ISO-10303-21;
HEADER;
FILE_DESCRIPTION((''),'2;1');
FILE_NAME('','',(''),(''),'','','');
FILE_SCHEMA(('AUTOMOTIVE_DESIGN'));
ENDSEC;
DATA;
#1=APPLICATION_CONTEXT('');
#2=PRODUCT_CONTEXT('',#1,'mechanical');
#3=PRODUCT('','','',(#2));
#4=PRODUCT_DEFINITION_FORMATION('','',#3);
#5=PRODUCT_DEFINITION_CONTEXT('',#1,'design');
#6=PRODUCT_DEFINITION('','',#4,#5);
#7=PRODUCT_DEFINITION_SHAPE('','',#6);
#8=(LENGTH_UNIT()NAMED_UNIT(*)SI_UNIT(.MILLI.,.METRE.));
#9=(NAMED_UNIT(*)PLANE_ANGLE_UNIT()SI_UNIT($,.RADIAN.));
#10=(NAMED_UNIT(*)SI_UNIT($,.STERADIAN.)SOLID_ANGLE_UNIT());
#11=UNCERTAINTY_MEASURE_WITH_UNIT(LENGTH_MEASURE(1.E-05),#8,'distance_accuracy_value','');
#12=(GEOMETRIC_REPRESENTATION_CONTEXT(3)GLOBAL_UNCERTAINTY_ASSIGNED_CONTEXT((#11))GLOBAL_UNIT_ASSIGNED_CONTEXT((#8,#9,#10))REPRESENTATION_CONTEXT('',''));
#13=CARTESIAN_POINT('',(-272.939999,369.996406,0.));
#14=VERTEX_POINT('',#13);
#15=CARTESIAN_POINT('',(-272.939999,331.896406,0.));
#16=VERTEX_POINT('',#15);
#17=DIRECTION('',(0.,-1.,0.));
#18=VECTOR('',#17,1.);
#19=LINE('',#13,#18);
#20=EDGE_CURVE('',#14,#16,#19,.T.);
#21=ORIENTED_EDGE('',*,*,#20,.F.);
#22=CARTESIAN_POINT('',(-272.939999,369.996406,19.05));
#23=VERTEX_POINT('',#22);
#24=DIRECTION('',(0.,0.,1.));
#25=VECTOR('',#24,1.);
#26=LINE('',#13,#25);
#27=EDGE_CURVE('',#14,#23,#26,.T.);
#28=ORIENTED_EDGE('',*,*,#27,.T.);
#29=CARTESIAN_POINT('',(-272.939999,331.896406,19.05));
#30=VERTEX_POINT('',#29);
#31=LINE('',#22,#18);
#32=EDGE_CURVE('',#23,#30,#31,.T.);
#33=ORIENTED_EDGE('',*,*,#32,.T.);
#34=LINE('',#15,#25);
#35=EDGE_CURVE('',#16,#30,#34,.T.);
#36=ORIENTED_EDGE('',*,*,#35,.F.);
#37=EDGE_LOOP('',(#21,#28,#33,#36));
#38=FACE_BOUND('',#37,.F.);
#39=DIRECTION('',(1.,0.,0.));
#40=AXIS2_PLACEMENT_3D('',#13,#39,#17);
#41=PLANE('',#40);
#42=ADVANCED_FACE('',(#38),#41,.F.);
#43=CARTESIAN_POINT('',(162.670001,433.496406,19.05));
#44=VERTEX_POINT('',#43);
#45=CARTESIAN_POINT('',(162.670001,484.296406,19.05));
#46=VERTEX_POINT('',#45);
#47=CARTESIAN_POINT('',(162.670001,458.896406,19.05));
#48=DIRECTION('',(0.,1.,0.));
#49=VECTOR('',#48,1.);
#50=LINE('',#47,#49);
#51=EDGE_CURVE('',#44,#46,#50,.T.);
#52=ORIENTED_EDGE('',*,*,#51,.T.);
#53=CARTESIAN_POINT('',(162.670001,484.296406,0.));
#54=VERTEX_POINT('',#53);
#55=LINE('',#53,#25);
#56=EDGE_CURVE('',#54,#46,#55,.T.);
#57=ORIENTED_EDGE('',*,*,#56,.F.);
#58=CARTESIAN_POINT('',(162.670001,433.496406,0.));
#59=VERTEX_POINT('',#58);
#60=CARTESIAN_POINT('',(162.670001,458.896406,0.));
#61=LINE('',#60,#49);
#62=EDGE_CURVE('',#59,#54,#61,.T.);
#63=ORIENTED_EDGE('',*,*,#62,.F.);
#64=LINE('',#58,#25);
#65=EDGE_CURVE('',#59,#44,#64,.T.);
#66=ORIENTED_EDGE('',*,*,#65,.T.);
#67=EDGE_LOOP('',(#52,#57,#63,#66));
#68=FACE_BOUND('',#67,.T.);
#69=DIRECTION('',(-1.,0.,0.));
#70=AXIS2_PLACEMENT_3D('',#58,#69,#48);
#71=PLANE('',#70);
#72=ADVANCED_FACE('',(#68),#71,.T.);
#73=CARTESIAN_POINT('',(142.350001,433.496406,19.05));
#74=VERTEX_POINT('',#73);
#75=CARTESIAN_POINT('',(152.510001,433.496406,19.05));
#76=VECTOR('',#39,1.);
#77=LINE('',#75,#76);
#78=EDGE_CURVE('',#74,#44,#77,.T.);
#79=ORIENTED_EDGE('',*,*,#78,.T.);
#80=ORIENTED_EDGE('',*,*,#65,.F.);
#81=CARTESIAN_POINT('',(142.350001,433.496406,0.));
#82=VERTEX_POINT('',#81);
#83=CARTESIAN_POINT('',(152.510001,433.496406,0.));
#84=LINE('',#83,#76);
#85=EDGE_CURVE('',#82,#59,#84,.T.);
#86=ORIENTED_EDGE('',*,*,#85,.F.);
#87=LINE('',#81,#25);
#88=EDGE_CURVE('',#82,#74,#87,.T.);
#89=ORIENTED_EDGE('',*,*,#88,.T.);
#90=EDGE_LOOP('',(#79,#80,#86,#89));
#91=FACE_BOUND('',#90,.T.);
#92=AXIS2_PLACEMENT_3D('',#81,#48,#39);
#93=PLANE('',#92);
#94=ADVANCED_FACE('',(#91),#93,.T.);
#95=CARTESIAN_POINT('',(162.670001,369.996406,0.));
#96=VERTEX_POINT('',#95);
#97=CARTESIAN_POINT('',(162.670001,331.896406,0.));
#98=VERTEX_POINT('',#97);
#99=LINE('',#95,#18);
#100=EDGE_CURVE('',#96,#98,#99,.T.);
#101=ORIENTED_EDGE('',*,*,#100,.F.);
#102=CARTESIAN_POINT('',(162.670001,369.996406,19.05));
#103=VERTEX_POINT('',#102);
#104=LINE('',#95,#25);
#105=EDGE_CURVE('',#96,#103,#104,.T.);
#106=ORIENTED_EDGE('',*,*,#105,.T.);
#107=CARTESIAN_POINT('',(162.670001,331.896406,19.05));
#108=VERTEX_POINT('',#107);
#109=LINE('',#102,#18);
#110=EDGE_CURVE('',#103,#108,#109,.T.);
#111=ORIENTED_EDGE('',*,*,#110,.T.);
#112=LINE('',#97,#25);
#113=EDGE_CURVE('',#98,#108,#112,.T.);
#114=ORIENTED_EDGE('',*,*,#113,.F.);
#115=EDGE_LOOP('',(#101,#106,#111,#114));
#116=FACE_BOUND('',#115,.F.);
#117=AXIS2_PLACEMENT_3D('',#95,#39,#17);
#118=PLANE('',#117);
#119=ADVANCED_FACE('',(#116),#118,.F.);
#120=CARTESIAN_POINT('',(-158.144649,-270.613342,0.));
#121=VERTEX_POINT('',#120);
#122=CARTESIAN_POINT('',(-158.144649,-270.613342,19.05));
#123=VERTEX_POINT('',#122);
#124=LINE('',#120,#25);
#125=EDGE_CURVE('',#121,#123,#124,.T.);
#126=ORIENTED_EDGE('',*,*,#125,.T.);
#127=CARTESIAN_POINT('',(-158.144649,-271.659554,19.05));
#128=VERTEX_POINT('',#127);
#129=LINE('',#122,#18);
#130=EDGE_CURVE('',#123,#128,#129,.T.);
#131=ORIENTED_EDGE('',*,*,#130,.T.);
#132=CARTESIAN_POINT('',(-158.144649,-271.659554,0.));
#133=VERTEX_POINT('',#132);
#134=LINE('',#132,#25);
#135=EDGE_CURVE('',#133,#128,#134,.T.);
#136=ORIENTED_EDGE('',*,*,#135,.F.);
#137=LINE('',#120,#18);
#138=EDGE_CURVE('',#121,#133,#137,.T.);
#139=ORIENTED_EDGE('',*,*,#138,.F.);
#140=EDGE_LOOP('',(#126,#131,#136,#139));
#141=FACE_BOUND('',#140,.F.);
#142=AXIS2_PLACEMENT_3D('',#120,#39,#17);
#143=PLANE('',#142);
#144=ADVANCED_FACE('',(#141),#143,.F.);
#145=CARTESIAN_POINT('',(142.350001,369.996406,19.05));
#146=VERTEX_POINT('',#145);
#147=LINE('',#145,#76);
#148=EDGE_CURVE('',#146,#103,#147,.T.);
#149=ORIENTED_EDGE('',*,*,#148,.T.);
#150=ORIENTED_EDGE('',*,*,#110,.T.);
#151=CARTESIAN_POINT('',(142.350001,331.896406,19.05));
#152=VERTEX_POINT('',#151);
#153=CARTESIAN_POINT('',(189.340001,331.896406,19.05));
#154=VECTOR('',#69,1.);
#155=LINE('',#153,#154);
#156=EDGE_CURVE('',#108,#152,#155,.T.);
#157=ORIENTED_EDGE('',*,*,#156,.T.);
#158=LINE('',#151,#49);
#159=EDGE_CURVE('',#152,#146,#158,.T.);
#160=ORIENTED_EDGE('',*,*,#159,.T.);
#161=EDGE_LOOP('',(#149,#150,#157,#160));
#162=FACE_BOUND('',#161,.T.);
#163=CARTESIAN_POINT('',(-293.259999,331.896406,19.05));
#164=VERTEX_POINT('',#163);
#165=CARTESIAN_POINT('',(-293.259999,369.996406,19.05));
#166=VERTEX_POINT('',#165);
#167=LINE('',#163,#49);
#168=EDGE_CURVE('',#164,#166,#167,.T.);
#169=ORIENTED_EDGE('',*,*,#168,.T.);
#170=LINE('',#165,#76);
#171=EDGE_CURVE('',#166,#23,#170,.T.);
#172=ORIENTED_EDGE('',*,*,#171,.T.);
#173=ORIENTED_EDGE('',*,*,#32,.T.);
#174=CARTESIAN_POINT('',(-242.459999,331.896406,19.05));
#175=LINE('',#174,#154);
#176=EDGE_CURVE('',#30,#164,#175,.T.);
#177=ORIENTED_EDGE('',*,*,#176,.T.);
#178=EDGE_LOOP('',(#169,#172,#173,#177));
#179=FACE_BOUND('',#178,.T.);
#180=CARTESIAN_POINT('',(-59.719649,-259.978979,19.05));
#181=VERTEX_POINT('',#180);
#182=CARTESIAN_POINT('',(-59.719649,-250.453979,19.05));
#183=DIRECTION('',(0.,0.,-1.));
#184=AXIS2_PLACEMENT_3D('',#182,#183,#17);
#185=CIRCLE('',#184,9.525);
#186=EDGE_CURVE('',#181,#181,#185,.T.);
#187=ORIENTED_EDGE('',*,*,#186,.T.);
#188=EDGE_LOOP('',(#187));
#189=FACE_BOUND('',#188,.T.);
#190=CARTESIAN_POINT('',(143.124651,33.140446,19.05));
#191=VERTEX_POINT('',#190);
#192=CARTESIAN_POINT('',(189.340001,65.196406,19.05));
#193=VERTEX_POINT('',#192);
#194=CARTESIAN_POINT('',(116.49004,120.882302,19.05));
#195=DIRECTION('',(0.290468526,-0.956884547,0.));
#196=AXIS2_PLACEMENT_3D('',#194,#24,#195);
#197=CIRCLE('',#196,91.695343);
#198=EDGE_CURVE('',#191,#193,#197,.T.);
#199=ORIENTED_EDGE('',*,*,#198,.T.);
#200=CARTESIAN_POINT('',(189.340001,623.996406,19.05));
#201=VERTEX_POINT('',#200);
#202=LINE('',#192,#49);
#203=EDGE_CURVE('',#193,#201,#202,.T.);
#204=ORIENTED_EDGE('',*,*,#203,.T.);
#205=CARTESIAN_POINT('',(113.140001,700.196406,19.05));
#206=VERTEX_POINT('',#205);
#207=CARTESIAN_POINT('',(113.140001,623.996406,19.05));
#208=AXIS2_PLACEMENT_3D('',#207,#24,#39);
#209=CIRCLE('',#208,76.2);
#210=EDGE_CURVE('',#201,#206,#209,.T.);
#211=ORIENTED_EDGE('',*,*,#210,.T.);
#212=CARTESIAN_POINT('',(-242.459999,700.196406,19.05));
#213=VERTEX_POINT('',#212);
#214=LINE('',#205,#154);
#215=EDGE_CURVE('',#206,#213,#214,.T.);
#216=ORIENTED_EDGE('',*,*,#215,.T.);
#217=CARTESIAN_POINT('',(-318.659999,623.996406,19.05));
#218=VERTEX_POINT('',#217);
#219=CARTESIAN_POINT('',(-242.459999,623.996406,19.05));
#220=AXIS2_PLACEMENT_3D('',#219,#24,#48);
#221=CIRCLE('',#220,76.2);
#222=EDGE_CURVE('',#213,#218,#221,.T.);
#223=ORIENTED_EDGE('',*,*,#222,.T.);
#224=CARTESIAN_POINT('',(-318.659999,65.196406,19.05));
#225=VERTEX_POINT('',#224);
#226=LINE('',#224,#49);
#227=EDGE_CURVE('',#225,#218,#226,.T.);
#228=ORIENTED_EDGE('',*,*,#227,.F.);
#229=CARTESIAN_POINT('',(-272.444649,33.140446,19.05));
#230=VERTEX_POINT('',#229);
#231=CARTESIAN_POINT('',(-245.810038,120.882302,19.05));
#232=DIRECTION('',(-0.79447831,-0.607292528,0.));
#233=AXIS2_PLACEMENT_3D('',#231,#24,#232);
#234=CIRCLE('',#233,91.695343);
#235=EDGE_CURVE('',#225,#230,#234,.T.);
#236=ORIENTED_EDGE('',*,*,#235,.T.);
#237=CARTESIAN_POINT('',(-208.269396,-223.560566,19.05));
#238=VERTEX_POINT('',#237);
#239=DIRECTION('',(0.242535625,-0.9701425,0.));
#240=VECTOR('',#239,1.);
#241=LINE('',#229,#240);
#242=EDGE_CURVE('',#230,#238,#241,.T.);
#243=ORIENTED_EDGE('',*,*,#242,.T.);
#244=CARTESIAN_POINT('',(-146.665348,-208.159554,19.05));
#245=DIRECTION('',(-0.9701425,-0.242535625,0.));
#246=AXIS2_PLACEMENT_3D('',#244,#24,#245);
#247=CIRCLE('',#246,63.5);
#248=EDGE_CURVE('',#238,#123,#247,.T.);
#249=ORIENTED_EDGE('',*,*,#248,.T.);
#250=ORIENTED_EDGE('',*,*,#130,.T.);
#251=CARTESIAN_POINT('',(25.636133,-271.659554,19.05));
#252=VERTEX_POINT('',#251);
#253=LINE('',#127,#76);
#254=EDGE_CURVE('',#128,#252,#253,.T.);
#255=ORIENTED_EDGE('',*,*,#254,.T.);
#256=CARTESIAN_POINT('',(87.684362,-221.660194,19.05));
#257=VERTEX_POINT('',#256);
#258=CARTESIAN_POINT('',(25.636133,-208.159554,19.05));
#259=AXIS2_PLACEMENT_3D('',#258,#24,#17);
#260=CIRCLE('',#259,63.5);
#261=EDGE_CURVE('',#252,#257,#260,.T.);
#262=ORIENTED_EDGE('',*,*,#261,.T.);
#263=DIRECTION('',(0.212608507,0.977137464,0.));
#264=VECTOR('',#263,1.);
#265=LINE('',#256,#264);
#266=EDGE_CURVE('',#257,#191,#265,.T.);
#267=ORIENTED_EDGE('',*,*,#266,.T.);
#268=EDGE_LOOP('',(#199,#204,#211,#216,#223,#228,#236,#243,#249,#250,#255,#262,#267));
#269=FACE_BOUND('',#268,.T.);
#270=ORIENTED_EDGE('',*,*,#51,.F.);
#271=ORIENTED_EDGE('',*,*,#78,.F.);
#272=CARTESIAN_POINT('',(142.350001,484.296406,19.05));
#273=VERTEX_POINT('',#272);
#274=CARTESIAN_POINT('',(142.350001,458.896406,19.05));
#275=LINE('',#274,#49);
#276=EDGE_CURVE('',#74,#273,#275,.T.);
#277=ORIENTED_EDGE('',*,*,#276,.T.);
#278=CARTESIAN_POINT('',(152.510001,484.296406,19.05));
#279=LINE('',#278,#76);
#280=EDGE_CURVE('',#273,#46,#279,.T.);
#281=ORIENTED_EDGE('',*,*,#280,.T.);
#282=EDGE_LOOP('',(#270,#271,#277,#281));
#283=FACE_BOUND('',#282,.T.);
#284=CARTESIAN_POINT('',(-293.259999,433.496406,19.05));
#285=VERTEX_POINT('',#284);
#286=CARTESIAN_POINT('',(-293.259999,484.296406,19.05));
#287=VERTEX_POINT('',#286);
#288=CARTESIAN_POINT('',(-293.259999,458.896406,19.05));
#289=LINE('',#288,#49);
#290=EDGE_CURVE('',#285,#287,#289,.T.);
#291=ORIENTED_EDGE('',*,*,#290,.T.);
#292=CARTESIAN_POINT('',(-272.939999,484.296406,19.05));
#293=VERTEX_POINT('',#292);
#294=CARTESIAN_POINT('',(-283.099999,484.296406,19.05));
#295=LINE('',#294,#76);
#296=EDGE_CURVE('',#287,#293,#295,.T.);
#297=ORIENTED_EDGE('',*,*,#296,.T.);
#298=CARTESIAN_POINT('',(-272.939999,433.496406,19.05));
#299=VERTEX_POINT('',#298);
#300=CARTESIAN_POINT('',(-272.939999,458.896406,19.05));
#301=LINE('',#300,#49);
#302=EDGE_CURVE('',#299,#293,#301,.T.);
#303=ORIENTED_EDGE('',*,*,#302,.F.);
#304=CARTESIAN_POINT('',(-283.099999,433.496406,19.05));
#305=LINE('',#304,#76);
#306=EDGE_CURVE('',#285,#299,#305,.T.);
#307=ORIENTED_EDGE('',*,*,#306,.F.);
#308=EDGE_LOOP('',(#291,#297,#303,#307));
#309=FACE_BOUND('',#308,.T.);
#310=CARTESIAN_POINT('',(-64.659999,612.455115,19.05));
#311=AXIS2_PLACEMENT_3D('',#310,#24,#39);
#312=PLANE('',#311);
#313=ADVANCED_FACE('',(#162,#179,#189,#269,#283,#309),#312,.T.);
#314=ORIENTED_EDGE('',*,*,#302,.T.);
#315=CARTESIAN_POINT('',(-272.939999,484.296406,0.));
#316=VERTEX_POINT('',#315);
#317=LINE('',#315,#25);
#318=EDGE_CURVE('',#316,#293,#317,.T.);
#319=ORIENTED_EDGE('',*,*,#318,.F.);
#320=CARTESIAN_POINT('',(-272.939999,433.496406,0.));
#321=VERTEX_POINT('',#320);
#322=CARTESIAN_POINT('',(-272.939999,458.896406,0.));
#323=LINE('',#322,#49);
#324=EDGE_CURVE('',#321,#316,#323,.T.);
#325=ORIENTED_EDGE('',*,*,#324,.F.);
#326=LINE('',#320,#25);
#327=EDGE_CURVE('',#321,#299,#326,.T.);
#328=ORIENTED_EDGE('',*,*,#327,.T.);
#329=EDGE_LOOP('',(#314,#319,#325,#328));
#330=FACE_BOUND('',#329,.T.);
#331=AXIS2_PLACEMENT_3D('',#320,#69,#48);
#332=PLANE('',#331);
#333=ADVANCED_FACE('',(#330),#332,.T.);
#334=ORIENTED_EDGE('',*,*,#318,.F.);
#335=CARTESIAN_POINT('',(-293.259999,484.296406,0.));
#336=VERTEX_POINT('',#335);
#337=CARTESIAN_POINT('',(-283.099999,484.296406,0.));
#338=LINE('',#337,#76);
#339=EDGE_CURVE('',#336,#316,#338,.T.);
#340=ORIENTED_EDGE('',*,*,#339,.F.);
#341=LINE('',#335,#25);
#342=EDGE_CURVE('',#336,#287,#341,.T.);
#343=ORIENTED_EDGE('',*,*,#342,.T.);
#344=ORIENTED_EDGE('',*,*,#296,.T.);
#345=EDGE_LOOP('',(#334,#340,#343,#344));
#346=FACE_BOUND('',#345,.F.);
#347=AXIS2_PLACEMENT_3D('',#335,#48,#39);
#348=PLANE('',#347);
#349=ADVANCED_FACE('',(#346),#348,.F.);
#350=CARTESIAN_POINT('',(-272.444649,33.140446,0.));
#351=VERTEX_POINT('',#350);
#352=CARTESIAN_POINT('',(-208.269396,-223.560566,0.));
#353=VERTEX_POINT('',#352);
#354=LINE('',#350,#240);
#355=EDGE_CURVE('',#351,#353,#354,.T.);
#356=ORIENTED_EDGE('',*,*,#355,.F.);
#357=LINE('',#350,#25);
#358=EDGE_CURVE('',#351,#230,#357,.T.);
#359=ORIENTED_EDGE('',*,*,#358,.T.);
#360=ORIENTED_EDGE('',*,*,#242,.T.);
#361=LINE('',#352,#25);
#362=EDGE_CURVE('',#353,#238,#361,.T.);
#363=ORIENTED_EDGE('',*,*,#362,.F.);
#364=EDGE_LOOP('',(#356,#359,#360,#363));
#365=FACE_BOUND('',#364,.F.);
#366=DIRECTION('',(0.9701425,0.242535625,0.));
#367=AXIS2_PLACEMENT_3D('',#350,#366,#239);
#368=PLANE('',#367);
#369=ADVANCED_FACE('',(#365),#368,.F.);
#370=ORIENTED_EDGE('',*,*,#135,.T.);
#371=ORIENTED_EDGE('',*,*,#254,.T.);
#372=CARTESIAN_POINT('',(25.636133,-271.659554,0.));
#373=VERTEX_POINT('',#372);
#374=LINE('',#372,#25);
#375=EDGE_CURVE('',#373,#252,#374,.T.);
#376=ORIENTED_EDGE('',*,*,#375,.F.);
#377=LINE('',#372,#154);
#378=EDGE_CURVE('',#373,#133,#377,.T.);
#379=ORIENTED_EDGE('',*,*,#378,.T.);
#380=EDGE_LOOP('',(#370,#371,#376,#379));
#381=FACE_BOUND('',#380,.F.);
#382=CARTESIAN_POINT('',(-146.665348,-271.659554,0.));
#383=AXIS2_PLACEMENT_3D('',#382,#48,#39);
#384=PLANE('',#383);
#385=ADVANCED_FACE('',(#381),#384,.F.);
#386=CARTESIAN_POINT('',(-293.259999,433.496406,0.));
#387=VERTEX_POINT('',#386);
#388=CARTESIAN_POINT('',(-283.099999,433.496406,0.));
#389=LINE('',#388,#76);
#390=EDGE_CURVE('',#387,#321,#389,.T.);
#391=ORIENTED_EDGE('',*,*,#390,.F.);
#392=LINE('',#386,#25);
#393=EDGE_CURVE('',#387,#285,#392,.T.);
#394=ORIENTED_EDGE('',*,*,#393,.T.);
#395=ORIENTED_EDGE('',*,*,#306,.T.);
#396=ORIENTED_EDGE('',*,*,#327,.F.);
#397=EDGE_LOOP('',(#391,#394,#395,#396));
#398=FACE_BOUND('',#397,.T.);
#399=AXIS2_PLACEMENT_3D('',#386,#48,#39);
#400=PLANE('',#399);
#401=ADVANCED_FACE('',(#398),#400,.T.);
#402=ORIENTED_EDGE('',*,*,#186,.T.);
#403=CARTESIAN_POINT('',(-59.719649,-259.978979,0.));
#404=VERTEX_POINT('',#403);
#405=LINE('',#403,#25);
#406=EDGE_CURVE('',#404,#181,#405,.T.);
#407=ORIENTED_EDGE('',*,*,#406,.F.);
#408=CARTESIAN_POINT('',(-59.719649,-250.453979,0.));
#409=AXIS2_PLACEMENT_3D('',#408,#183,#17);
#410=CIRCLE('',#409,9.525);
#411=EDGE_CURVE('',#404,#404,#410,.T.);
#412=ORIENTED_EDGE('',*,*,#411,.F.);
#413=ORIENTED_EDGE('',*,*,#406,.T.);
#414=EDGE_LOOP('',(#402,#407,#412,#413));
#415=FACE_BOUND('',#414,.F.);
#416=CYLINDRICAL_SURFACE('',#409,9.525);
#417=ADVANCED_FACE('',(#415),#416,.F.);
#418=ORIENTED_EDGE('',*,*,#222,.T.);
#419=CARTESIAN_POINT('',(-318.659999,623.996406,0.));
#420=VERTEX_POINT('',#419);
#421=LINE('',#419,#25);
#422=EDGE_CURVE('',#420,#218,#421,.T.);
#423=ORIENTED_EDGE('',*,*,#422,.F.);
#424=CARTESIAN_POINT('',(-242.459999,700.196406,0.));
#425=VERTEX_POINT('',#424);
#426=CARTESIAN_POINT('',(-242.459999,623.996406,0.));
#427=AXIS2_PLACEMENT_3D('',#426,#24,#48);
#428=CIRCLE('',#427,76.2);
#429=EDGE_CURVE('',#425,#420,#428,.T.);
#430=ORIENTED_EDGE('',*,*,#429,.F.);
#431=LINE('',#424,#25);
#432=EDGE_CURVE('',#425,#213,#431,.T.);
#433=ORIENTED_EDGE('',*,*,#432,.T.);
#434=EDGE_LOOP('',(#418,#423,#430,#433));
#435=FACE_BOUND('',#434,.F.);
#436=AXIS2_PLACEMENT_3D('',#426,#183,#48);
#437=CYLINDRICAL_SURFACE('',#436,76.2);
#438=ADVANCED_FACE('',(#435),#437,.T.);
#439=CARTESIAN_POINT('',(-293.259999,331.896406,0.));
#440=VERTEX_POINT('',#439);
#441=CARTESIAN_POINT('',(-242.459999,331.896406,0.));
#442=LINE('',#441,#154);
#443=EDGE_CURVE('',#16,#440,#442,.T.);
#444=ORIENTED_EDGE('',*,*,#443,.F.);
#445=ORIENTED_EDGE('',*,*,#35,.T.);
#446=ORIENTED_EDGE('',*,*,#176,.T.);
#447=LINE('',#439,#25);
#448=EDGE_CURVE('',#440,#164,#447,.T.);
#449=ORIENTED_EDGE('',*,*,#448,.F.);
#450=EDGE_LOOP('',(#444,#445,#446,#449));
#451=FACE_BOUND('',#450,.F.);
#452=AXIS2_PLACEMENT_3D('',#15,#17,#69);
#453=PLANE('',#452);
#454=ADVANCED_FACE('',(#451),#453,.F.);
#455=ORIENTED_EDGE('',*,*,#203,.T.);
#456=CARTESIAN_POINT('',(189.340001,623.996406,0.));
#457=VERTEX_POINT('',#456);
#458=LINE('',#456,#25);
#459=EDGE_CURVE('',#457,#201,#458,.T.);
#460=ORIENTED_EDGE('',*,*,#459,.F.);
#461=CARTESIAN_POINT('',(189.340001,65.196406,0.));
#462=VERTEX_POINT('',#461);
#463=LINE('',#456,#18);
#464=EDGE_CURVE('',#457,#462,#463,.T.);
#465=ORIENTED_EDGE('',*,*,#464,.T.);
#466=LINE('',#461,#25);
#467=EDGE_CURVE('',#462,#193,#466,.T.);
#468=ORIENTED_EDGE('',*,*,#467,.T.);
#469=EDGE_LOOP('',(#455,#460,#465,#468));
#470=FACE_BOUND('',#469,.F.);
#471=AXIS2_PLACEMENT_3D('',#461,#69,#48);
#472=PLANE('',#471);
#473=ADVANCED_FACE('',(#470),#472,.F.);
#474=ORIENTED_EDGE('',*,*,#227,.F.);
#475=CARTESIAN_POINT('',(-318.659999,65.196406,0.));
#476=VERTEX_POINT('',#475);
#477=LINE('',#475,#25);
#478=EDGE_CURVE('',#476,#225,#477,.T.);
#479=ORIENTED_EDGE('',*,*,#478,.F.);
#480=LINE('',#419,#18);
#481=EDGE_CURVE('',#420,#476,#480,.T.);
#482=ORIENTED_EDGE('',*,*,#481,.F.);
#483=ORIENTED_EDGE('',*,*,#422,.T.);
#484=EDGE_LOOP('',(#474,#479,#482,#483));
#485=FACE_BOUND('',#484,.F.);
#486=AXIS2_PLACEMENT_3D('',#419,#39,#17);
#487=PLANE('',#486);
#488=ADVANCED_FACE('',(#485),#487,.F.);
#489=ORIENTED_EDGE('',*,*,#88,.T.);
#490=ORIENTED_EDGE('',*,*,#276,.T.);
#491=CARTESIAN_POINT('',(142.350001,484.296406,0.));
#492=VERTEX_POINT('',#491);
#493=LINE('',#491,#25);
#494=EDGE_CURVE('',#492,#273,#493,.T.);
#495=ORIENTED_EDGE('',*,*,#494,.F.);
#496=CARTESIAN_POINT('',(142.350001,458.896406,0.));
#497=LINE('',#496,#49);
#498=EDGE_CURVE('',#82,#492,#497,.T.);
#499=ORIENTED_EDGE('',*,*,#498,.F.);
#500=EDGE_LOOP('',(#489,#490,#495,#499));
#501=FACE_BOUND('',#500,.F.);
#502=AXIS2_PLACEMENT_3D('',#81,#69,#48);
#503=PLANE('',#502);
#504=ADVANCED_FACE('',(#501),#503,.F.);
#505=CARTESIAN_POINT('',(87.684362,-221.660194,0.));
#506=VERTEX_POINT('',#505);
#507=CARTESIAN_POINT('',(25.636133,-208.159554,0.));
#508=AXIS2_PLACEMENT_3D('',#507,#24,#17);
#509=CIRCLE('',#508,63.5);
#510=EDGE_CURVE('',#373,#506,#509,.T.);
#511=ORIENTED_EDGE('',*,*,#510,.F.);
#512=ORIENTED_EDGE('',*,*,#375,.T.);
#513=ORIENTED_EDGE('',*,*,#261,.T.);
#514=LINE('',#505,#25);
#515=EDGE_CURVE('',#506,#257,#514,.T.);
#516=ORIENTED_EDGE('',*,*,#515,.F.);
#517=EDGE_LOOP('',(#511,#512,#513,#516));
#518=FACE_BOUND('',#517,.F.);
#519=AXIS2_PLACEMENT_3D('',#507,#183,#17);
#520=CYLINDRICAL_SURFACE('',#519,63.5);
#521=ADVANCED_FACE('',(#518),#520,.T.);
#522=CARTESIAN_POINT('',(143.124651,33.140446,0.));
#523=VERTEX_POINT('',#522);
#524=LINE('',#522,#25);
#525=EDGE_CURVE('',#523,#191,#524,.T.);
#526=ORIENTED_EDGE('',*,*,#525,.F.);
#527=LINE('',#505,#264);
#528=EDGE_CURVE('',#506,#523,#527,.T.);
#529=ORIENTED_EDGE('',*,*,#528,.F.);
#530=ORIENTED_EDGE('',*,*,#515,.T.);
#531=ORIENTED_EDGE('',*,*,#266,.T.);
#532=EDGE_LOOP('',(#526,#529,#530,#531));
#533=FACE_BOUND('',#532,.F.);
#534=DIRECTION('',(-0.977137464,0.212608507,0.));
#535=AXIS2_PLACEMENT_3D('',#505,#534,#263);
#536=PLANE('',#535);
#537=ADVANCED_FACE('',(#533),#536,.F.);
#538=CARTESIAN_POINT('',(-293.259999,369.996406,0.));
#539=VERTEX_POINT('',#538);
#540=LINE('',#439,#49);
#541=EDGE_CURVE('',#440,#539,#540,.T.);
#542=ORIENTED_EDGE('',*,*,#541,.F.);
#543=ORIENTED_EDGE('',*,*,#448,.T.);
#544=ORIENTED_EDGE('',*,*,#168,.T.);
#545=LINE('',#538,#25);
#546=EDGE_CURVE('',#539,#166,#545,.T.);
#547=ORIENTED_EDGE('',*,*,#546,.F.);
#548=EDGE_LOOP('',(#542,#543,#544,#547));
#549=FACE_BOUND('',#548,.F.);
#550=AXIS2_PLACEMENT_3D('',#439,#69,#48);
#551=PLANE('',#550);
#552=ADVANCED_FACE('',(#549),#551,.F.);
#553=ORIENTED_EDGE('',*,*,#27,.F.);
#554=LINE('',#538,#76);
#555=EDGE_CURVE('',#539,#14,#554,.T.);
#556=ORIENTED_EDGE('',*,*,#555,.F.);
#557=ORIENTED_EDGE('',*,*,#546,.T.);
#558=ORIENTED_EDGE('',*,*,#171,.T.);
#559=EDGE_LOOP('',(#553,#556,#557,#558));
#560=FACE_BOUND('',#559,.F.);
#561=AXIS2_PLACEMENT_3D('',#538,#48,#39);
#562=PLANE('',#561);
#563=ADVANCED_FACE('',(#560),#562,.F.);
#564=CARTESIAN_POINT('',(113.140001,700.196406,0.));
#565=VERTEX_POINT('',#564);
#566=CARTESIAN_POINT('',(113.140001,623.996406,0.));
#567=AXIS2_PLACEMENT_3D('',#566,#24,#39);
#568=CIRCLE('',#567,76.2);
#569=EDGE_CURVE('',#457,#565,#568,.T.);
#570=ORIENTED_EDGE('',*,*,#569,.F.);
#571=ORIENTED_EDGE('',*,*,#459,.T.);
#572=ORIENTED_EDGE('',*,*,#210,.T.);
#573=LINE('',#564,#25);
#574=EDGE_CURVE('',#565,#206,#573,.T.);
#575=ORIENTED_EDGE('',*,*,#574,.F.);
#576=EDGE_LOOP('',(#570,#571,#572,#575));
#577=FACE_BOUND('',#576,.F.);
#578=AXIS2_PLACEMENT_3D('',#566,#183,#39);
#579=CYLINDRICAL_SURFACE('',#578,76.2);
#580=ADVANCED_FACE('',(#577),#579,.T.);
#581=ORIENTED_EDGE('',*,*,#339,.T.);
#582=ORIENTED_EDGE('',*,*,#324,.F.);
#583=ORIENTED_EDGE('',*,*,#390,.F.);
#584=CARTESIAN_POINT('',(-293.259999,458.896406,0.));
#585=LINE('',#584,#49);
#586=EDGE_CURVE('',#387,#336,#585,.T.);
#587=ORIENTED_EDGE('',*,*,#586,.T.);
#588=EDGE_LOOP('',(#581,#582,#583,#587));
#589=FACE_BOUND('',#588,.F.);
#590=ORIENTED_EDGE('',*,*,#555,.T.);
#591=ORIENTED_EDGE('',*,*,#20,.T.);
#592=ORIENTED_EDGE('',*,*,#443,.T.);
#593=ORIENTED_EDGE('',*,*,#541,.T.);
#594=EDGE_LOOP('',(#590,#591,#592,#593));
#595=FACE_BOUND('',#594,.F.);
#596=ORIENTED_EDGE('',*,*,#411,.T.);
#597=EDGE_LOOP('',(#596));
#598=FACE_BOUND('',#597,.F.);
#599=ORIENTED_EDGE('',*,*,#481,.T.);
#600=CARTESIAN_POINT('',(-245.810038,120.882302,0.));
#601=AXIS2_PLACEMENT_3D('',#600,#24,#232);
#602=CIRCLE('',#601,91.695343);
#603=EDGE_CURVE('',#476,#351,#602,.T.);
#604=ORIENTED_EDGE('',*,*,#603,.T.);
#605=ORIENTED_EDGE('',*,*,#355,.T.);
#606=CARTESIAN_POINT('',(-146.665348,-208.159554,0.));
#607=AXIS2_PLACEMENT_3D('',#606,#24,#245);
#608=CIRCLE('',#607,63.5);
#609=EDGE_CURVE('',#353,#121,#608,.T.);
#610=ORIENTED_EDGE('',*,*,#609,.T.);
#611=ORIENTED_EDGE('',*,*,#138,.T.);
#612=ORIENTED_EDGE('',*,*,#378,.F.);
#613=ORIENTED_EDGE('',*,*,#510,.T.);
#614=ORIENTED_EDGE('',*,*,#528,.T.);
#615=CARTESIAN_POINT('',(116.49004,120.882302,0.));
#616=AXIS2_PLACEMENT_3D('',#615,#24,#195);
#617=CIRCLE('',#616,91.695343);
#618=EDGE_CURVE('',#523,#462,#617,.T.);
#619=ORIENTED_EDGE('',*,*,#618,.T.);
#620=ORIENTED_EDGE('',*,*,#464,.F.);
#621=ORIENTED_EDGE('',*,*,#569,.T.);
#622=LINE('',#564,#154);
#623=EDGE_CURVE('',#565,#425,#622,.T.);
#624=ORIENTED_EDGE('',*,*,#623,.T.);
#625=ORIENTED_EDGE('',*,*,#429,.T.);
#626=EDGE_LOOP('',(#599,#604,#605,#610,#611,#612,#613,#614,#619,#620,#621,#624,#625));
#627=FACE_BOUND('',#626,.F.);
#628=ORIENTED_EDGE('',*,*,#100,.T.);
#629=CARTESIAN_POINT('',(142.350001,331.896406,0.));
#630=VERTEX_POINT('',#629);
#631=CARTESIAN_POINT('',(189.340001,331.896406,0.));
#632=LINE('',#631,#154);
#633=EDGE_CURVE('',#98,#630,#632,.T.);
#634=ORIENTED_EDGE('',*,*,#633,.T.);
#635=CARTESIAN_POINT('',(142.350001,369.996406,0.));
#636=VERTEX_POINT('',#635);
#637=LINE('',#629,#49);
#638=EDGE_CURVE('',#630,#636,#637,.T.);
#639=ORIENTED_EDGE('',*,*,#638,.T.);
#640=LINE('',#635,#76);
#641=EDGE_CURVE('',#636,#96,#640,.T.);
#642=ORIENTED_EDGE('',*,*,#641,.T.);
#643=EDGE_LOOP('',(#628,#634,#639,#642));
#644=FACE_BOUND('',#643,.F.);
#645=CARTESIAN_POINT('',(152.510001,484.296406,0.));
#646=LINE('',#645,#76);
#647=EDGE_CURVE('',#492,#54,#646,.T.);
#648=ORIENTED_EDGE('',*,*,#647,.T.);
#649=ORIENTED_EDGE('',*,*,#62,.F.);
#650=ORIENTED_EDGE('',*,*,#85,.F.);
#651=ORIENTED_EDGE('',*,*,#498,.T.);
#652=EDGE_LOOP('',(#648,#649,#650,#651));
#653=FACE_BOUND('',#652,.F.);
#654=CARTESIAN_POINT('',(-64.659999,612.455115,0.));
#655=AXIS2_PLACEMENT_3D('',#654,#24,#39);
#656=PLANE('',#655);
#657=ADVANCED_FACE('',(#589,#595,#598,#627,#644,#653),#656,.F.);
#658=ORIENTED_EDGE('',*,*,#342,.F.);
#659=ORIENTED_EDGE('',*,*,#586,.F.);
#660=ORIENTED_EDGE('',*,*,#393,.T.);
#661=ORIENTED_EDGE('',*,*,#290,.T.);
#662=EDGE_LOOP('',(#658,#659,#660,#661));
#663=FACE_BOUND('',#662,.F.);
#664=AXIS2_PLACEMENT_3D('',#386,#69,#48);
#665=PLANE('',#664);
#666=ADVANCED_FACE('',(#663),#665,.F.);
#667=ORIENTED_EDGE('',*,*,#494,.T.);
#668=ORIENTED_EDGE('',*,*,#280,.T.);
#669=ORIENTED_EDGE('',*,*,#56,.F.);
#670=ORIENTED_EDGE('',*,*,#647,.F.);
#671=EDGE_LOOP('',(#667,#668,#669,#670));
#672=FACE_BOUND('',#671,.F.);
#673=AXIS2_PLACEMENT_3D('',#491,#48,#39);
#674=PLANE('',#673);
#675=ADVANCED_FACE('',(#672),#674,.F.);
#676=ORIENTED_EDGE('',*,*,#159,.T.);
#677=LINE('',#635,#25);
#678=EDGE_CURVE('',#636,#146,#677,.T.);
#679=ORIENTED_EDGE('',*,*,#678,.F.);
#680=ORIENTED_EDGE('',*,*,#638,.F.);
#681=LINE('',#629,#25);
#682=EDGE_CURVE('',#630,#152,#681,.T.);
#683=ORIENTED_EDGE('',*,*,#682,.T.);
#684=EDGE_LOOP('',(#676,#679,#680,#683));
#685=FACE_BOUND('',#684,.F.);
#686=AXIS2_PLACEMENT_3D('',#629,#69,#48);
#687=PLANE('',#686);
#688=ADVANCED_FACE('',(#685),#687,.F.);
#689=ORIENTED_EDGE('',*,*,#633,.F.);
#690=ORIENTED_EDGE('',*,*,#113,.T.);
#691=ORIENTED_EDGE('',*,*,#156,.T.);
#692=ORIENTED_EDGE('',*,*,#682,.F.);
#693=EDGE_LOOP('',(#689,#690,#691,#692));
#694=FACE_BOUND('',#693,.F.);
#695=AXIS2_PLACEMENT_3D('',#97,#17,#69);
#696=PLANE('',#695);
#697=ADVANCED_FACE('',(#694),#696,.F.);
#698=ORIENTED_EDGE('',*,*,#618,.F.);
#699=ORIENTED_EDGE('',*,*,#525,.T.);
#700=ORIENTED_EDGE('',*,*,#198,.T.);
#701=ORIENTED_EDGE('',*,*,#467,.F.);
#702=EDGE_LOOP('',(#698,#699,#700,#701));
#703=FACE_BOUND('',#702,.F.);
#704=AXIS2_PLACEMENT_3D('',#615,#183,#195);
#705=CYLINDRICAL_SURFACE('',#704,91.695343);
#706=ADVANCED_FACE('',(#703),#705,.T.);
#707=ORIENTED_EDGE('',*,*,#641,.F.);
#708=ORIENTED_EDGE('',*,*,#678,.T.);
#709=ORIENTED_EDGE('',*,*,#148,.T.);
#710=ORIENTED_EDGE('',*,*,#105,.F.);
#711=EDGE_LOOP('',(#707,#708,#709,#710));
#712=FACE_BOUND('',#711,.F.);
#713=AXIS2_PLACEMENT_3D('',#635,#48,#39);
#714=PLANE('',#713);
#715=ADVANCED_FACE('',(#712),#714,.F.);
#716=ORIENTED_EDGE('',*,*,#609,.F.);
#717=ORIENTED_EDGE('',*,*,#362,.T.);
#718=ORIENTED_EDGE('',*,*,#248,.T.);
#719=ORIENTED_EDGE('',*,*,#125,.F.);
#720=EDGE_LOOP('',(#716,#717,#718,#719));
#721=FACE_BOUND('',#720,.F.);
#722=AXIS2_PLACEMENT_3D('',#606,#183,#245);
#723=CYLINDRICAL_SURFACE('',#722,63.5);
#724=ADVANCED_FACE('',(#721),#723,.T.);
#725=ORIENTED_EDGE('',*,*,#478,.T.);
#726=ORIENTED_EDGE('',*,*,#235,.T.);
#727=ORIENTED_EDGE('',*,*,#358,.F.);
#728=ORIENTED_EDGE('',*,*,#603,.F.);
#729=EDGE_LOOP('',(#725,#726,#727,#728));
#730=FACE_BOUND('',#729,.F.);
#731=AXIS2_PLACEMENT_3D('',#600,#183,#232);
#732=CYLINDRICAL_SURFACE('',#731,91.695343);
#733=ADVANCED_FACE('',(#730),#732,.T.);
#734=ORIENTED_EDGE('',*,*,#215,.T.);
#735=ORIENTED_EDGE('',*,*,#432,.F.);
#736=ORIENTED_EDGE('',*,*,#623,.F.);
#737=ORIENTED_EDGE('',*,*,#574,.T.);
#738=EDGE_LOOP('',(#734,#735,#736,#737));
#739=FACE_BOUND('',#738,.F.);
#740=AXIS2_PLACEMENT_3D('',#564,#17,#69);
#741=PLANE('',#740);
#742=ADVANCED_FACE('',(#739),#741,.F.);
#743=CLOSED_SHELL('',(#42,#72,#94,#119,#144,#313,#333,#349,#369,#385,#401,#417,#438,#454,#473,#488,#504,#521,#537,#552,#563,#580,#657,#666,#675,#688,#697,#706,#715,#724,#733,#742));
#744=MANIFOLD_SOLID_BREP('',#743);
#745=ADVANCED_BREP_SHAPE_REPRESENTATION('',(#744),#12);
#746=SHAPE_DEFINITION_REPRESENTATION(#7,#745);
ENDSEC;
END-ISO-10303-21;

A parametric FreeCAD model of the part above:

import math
import FreeCAD as App
import Part
import Sketcher
Q = App.Units.Quantity


def add_polygon(sketch, points):
    """Adds a closed chain of lines whose ends are joined by coincident constraints."""
    first, n = sketch.GeometryCount, len(points)
    for a, b in zip(points, points[1:] + points[:1]):
        sketch.addGeometry(Part.LineSegment(App.Vector(*a, 0), App.Vector(*b, 0)), False)
    for i in range(n):
        sketch.addConstraint(Sketcher.Constraint("Coincident", first + i, 2, first + (i + 1) % n, 1))

doc = App.newDocument("Part")
params = doc.addObject("Spreadsheet::Sheet", "Params")
for row, (alias, value) in enumerate([
    ("sketch1_radius", "2.5 in"),
    ("sketch1_diameter", "0.75 in"),
    ("sketch1_width", "20 in"),
    ("sketch1_height", "2 in"),
    ("sketch1_width2", "0.8 in"),
    ("pad1_length", "0.75 in"),
    ("sketch2_radius", "3 in"),
    ("sketch2_radius2", "2.5 in"),
    ("sketch2_diameter", "0.75 in"),
    ("sketch2_width", "14 in"),
    ("sketch2_height", "22 in"),
    ("pad2_length", "0.75 in"),
    ("sketch3_radius", "3 in"),
    ("sketch3_radius2", "2.5 in"),
    ("sketch3_diameter", "0.75 in"),
    ("sketch3_width", "14 in"),
    ("sketch3_height", "22 in"),
    ("pad3_length", "0.75 in"),
], start=1):
    params.set(f"A{row}", alias)
    params.set(f"B{row}", "=" + value)
    params.setAlias(f"B{row}", alias)

body = doc.addObject("PartDesign::Body", "Body")

# Sketch on XY plane
sketch1 = body.newObject("Sketcher::SketchObject", "Sketch")
sketch1.AttachmentSupport = (doc.getObject("XY_Plane"), [""])
sketch1.MapMode = "FlatFace"
sketch1.addGeometry(Part.LineSegment(App.Vector(-319, 535, 0), App.Vector(-319, 65, 0)), False)  # 0
sketch1.addGeometry(Part.ArcOfCircle(Part.Circle(App.Vector(-246, 121, 0), App.Vector(0, 0, 1), 92), math.radians(-143), math.radians(-107)), False)  # 1
sketch1.addGeometry(Part.LineSegment(App.Vector(-272, 33, 0), App.Vector(-208, -224, 0)), False)  # 2
sketch1.addGeometry(Part.ArcOfCircle(Part.Circle(App.Vector(-147, -208, 0), App.Vector(0, 0, 1), 64), math.radians(-166), math.radians(-100)), False)  # 3
sketch1.addGeometry(Part.ArcOfCircle(Part.Circle(App.Vector(-147, -208, 0), App.Vector(0, 0, 1), 64), math.radians(-100.41), math.radians(-90)), False)  # 4
sketch1.addGeometry(Part.LineSegment(App.Vector(-147, -272, 0), App.Vector(26, -272, 0)), False)  # 5
sketch1.addGeometry(Part.ArcOfCircle(Part.Circle(App.Vector(26, -208, 0), App.Vector(0, 0, 1), 64), math.radians(-90), math.radians(-12)), False)  # 6
sketch1.addGeometry(Part.LineSegment(App.Vector(88, -222, 0), App.Vector(143, 33, 0)), False)  # 7
sketch1.addGeometry(Part.ArcOfCircle(Part.Circle(App.Vector(116, 121, 0), App.Vector(0, 0, 1), 92), math.radians(-73), math.radians(-37)), False)  # 8
sketch1.addGeometry(Part.LineSegment(App.Vector(189, 65, 0), App.Vector(189, 535, 0)), False)  # 9
sketch1.addGeometry(Part.LineSegment(App.Vector(189, 535, 0), App.Vector(-319, 535, 0)), False)  # 10
sketch1.addGeometry(Part.Circle(App.Vector(-60, -250, 0), App.Vector(0, 0, 1), 10), False)  # 11
add_polygon(sketch1, [(-273, 370), (-273, 332), (-293, 332), (-293, 370)])  # lines 12-15
add_polygon(sketch1, [(-273, 433), (-293, 433), (-293, 484), (-273, 484)])  # lines 16-19
add_polygon(sketch1, [(163, 332), (142, 332), (142, 370), (163, 370)])  # lines 20-23
add_polygon(sketch1, [(163, 433), (142, 433), (142, 484), (163, 484)])  # lines 24-27
sketch1.addConstraint([
    Sketcher.Constraint("Coincident", 0, 2, 1, 1),
    Sketcher.Constraint("Coincident", 1, 2, 2, 1),
    Sketcher.Constraint("Tangent", 2, 2, 3, 1),
    Sketcher.Constraint("Tangent", 3, 2, 4, 1),
    Sketcher.Constraint("Tangent", 4, 2, 5, 1),
    Sketcher.Constraint("Tangent", 5, 2, 6, 1),
    Sketcher.Constraint("Tangent", 6, 2, 7, 1),
    Sketcher.Constraint("Coincident", 7, 2, 8, 1),
    Sketcher.Constraint("Coincident", 8, 2, 9, 1),
    Sketcher.Constraint("Coincident", 9, 2, 10, 1),
    Sketcher.Constraint("Coincident", 10, 2, 0, 1),
    Sketcher.Constraint("Vertical", 0),
    Sketcher.Constraint("Horizontal", 5),
    Sketcher.Constraint("Vertical", 9),
    Sketcher.Constraint("Horizontal", 10),
    Sketcher.Constraint("Vertical", 12),
    Sketcher.Constraint("Horizontal", 13),
    Sketcher.Constraint("Vertical", 14),
    Sketcher.Constraint("Horizontal", 15),
    Sketcher.Constraint("Horizontal", 16),
    Sketcher.Constraint("Vertical", 17),
    Sketcher.Constraint("Horizontal", 18),
    Sketcher.Constraint("Vertical", 19),
    Sketcher.Constraint("Horizontal", 20),
    Sketcher.Constraint("Vertical", 21),
    Sketcher.Constraint("Horizontal", 22),
    Sketcher.Constraint("Vertical", 23),
    Sketcher.Constraint("Horizontal", 24),
    Sketcher.Constraint("Vertical", 25),
    Sketcher.Constraint("Horizontal", 26),
    Sketcher.Constraint("Vertical", 27),
    Sketcher.Constraint("Equal", 3, 4),
    Sketcher.Constraint("Equal", 4, 6),
    Sketcher.Constraint("Equal", 1, 8),
    Sketcher.Constraint("Horizontal", 1, 3, 8, 3),
    Sketcher.Constraint("Horizontal", 1, 2, 7, 2),
    Sketcher.Constraint("Horizontal", 0, 2, 8, 2),
    Sketcher.Constraint("Horizontal", 13, 2, 20, 2),
    Sketcher.Constraint("Horizontal", 15, 2, 21, 2),
    Sketcher.Constraint("Horizontal", 19, 2, 24, 2),
    Sketcher.Constraint("Horizontal", 18, 2, 25, 2),
    Sketcher.Constraint("Vertical", 14, 2, 16, 2),
    Sketcher.Constraint("Vertical", 15, 2, 18, 2),
    Sketcher.Constraint("Vertical", 21, 2, 24, 2),
    Sketcher.Constraint("Vertical", 23, 2, 26, 2),
    Sketcher.Constraint("Equal", 18, 20),
    Sketcher.Constraint("Radius", 3, Q("2.5 in")),
    Sketcher.Constraint("Diameter", 11, Q("0.75 in")),
    Sketcher.Constraint("DistanceX", 10, 2, 10, 1, Q("20 in")),
    Sketcher.Constraint("DistanceY", 17, 1, 17, 2, Q("2 in")),
    Sketcher.Constraint("DistanceX", 13, 2, 13, 1, Q("0.8 in")),
    Sketcher.Constraint("DistanceY", 0, 2, 0, 1, Q("18.5 in")),
    Sketcher.Constraint("DistanceY", 12, 2, 12, 1, Q("1.5 in")),
    Sketcher.Constraint("DistanceY", 5, 2, 7, 2, Q("12 in")),
    Sketcher.Constraint("DistanceY", 12, 2, 10, 2, Q("8 in")),
    Sketcher.Constraint("DistanceX", 10, 2, 13, 2, Q("1 in")),
    Sketcher.Constraint("DistanceY", 13, 2, 16, 2, Q("4 in")),
    Sketcher.Constraint("DistanceX", 20, 2, 9, 2, Q("1.85 in")),
    Sketcher.Constraint("DistanceX", 1, 2, 11, 3, Q("8.375 in")),
    Sketcher.Constraint("DistanceX", 3, 2, 11, 3, Q("3.875 in")),
    Sketcher.Constraint("Radius", 1, Q("91.695343 mm")),
    Sketcher.Constraint("DistanceX", 5, 1, 5, 2, Q("172.30148 mm")),
    Sketcher.Constraint("DistanceX", 0, 2, -1, 1, Q("318.659999 mm")),
    Sketcher.Constraint("DistanceX", 3, 3, 11, 3, Q("86.945698 mm")),
    Sketcher.Constraint("DistanceX", 11, 3, 7, 2, Q("202.8443 mm")),
    Sketcher.Constraint("DistanceY", 6, 2, 8, 2, Q("286.8566 mm")),
    Sketcher.Constraint("DistanceY", 11, 3, -1, 1, Q("250.453979 mm")),
    Sketcher.Constraint("DistanceY", 11, 3, 8, 3, Q("371.336281 mm")),
])
sketch1.setExpression("Constraints[62]", "Params.sketch1_radius")
sketch1.setExpression("Constraints[63]", "Params.sketch1_diameter")
sketch1.setExpression("Constraints[64]", "Params.sketch1_width")
sketch1.setExpression("Constraints[65]", "Params.sketch1_height")
sketch1.setExpression("Constraints[66]", "Params.sketch1_width2")
pad1 = body.newObject("PartDesign::Pad", "Pad")
pad1.Profile = sketch1
pad1.setExpression("Length", "Params.pad1_length")

# Sketch on XY plane
sketch2 = body.newObject("Sketcher::SketchObject", "Sketch001")
sketch2.AttachmentSupport = (doc.getObject("XY_Plane"), [""])
sketch2.MapMode = "FlatFace"
sketch2.addGeometry(Part.LineSegment(App.Vector(-318.7, 624, 0), App.Vector(-318.7, 65.2, 0)), False)  # 0
sketch2.addGeometry(Part.ArcOfCircle(Part.Circle(App.Vector(-245.8, 120.9, 0), App.Vector(0, 0, 1), 91.7), math.radians(-143), math.radians(-107)), False)  # 1
sketch2.addGeometry(Part.LineSegment(App.Vector(-272.4, 33.1, 0), App.Vector(-208.3, -223.6, 0)), False)  # 2
sketch2.addGeometry(Part.ArcOfCircle(Part.Circle(App.Vector(-146.7, -208.2, 0), App.Vector(0, 0, 1), 63.5), math.radians(-166), math.radians(-100)), False)  # 3
sketch2.addGeometry(Part.LineSegment(App.Vector(-158.1, -270.6, 0), App.Vector(-158.1, -271.7, 0)), False)  # 4
sketch2.addGeometry(Part.LineSegment(App.Vector(-158.1, -271.7, 0), App.Vector(25.6, -271.7, 0)), False)  # 5
sketch2.addGeometry(Part.ArcOfCircle(Part.Circle(App.Vector(25.6, -208.2, 0), App.Vector(0, 0, 1), 63.5), math.radians(-90), math.radians(-12)), False)  # 6
sketch2.addGeometry(Part.LineSegment(App.Vector(87.7, -221.7, 0), App.Vector(143.1, 33.1, 0)), False)  # 7
sketch2.addGeometry(Part.ArcOfCircle(Part.Circle(App.Vector(116.5, 120.9, 0), App.Vector(0, 0, 1), 91.7), math.radians(-73), math.radians(-37)), False)  # 8
sketch2.addGeometry(Part.LineSegment(App.Vector(189.3, 65.2, 0), App.Vector(189.3, 624, 0)), False)  # 9
sketch2.addGeometry(Part.ArcOfCircle(Part.Circle(App.Vector(113.1, 624, 0), App.Vector(0, 0, 1), 76.2), math.radians(0), math.radians(90)), False)  # 10
sketch2.addGeometry(Part.LineSegment(App.Vector(113.1, 700.2, 0), App.Vector(-242.5, 700.2, 0)), False)  # 11
sketch2.addGeometry(Part.ArcOfCircle(Part.Circle(App.Vector(-242.5, 624, 0), App.Vector(0, 0, 1), 76.2), math.radians(90), math.radians(180)), False)  # 12
sketch2.addGeometry(Part.Circle(App.Vector(-59.7, -250.5, 0), App.Vector(0, 0, 1), 9.5), False)  # 13
add_polygon(sketch2, [(-293.3, 331.9), (-293.3, 370), (-272.9, 370), (-272.9, 331.9)])  # lines 14-17
add_polygon(sketch2, [(-272.9, 433.5), (-293.3, 433.5), (-293.3, 484.3), (-272.9, 484.3)])  # lines 18-21
add_polygon(sketch2, [(162.7, 331.9), (142.4, 331.9), (142.4, 370), (162.7, 370)])  # lines 22-25
add_polygon(sketch2, [(162.7, 433.5), (142.4, 433.5), (142.4, 484.3), (162.7, 484.3)])  # lines 26-29
sketch2.addConstraint([
    Sketcher.Constraint("Coincident", 0, 2, 1, 1),
    Sketcher.Constraint("Coincident", 1, 2, 2, 1),
    Sketcher.Constraint("Tangent", 2, 2, 3, 1),
    Sketcher.Constraint("Coincident", 3, 2, 4, 1),
    Sketcher.Constraint("Coincident", 4, 2, 5, 1),
    Sketcher.Constraint("Tangent", 5, 2, 6, 1),
    Sketcher.Constraint("Tangent", 6, 2, 7, 1),
    Sketcher.Constraint("Coincident", 7, 2, 8, 1),
    Sketcher.Constraint("Coincident", 8, 2, 9, 1),
    Sketcher.Constraint("Tangent", 9, 2, 10, 1),
    Sketcher.Constraint("Tangent", 10, 2, 11, 1),
    Sketcher.Constraint("Tangent", 11, 2, 12, 1),
    Sketcher.Constraint("Tangent", 12, 2, 0, 1),
    Sketcher.Constraint("Vertical", 0),
    Sketcher.Constraint("Vertical", 4),
    Sketcher.Constraint("Horizontal", 5),
    Sketcher.Constraint("Vertical", 9),
    Sketcher.Constraint("Horizontal", 11),
    Sketcher.Constraint("Vertical", 14),
    Sketcher.Constraint("Horizontal", 15),
    Sketcher.Constraint("Vertical", 16),
    Sketcher.Constraint("Horizontal", 17),
    Sketcher.Constraint("Horizontal", 18),
    Sketcher.Constraint("Vertical", 19),
    Sketcher.Constraint("Horizontal", 20),
    Sketcher.Constraint("Vertical", 21),
    Sketcher.Constraint("Horizontal", 22),
    Sketcher.Constraint("Vertical", 23),
    Sketcher.Constraint("Horizontal", 24),
    Sketcher.Constraint("Vertical", 25),
    Sketcher.Constraint("Horizontal", 26),
    Sketcher.Constraint("Vertical", 27),
    Sketcher.Constraint("Horizontal", 28),
    Sketcher.Constraint("Vertical", 29),
    Sketcher.Constraint("Equal", 3, 6),
    Sketcher.Constraint("Equal", 1, 8),
    Sketcher.Constraint("Equal", 10, 12),
    Sketcher.Constraint("Horizontal", 3, 3, 6, 3),
    Sketcher.Constraint("Horizontal", 1, 3, 8, 3),
    Sketcher.Constraint("Horizontal", 1, 2, 7, 2),
    Sketcher.Constraint("Horizontal", 0, 2, 8, 2),
    Sketcher.Constraint("Horizontal", 17, 2, 22, 2),
    Sketcher.Constraint("Horizontal", 15, 2, 23, 2),
    Sketcher.Constraint("Horizontal", 21, 2, 26, 2),
    Sketcher.Constraint("Horizontal", 20, 2, 27, 2),
    Sketcher.Constraint("Vertical", 17, 2, 18, 2),
    Sketcher.Constraint("Vertical", 16, 2, 20, 2),
    Sketcher.Constraint("Vertical", 23, 2, 26, 2),
    Sketcher.Constraint("Vertical", 25, 2, 28, 2),
    Sketcher.Constraint("Equal", 20, 22),
    Sketcher.Constraint("Radius", 10, Q("3 in")),
    Sketcher.Constraint("Radius", 3, Q("2.5 in")),
    Sketcher.Constraint("Diameter", 13, Q("0.75 in")),
    Sketcher.Constraint("DistanceX", 11, 2, 11, 1, Q("14 in")),
    Sketcher.Constraint("DistanceY", 0, 2, 0, 1, Q("22 in")),
    Sketcher.Constraint("DistanceY", 19, 1, 19, 2, Q("2 in")),
    Sketcher.Constraint("DistanceX", 15, 1, 15, 2, Q("0.8 in")),
    Sketcher.Constraint("DistanceY", 14, 1, 14, 2, Q("1.5 in")),
    Sketcher.Constraint("DistanceY", 5, 2, 7, 2, Q("12 in")),
    Sketcher.Constraint("DistanceX", 12, 2, 14, 2, Q("1 in")),
    Sketcher.Constraint("DistanceY", 14, 2, 12, 2, Q("10 in")),
    Sketcher.Constraint("DistanceY", 17, 2, 18, 2, Q("4 in")),
    Sketcher.Constraint("DistanceX", 1, 2, 3, 2, Q("4.5 in")),
    Sketcher.Constraint("DistanceX", 22, 2, 8, 2, Q("1.85 in")),
    Sketcher.Constraint("DistanceX", 1, 2, 13, 3, Q("8.375 in")),
    Sketcher.Constraint("Radius", 1, Q("91.695343 mm")),
    Sketcher.Constraint("DistanceX", -1, 1, 10, 3, Q("113.140001 mm")),
    Sketcher.Constraint("DistanceX", 3, 3, 13, 3, Q("86.945698 mm")),
    Sketcher.Constraint("DistanceX", 13, 3, 7, 2, Q("202.8443 mm")),
    Sketcher.Constraint("DistanceY", 6, 2, 8, 2, Q("286.8566 mm")),
    Sketcher.Constraint("Distance", 7, Q("260.762328 mm")),
    Sketcher.Constraint("DistanceY", 13, 3, -1, 1, Q("250.453979 mm")),
    Sketcher.Constraint("DistanceY", 13, 3, 8, 3, Q("371.336281 mm")),
])
sketch2.setExpression("Constraints[66]", "Params.sketch2_radius")
sketch2.setExpression("Constraints[67]", "Params.sketch2_radius2")
sketch2.setExpression("Constraints[68]", "Params.sketch2_diameter")
sketch2.setExpression("Constraints[69]", "Params.sketch2_width")
sketch2.setExpression("Constraints[70]", "Params.sketch2_height")
pad2 = body.newObject("PartDesign::Pad", "Pad001")
pad2.Profile = sketch2
pad2.setExpression("Length", "Params.pad2_length")

# Sketch on XY plane
sketch3 = body.newObject("Sketcher::SketchObject", "Sketch002")
sketch3.AttachmentSupport = (doc.getObject("XY_Plane"), [""])
sketch3.MapMode = "FlatFace"
sketch3.addGeometry(Part.LineSegment(App.Vector(-318.7, 624, 0), App.Vector(-318.7, 65.2, 0)), False)  # 0
sketch3.addGeometry(Part.ArcOfCircle(Part.Circle(App.Vector(-245.8, 120.9, 0), App.Vector(0, 0, 1), 91.7), math.radians(-143), math.radians(-107)), False)  # 1
sketch3.addGeometry(Part.LineSegment(App.Vector(-272.4, 33.1, 0), App.Vector(-208.3, -223.6, 0)), False)  # 2
sketch3.addGeometry(Part.ArcOfCircle(Part.Circle(App.Vector(-146.7, -208.2, 0), App.Vector(0, 0, 1), 63.5), math.radians(-166), math.radians(-100)), False)  # 3
sketch3.addGeometry(Part.LineSegment(App.Vector(-158.1, -270.6, 0), App.Vector(-158.1, -271.7, 0)), False)  # 4
sketch3.addGeometry(Part.LineSegment(App.Vector(-158.1, -271.7, 0), App.Vector(25.6, -271.7, 0)), False)  # 5
sketch3.addGeometry(Part.ArcOfCircle(Part.Circle(App.Vector(25.6, -208.2, 0), App.Vector(0, 0, 1), 63.5), math.radians(-90), math.radians(-12)), False)  # 6
sketch3.addGeometry(Part.LineSegment(App.Vector(87.7, -221.7, 0), App.Vector(143.1, 33.1, 0)), False)  # 7
sketch3.addGeometry(Part.ArcOfCircle(Part.Circle(App.Vector(116.5, 120.9, 0), App.Vector(0, 0, 1), 91.7), math.radians(-73), math.radians(-37)), False)  # 8
sketch3.addGeometry(Part.LineSegment(App.Vector(189.3, 65.2, 0), App.Vector(189.3, 624, 0)), False)  # 9
sketch3.addGeometry(Part.ArcOfCircle(Part.Circle(App.Vector(113.1, 624, 0), App.Vector(0, 0, 1), 76.2), math.radians(0), math.radians(90)), False)  # 10
sketch3.addGeometry(Part.LineSegment(App.Vector(113.1, 700.2, 0), App.Vector(-242.5, 700.2, 0)), False)  # 11
sketch3.addGeometry(Part.ArcOfCircle(Part.Circle(App.Vector(-242.5, 624, 0), App.Vector(0, 0, 1), 76.2), math.radians(90), math.radians(180)), False)  # 12
sketch3.addGeometry(Part.Circle(App.Vector(-59.7, -250.5, 0), App.Vector(0, 0, 1), 9.5), False)  # 13
add_polygon(sketch3, [(-293.3, 331.9), (-293.3, 370), (-272.9, 370), (-272.9, 331.9)])  # lines 14-17
add_polygon(sketch3, [(-272.9, 433.5), (-293.3, 433.5), (-293.3, 484.3), (-272.9, 484.3)])  # lines 18-21
add_polygon(sketch3, [(162.7, 331.9), (142.4, 331.9), (142.4, 370), (162.7, 370)])  # lines 22-25
add_polygon(sketch3, [(162.7, 433.5), (142.4, 433.5), (142.4, 484.3), (162.7, 484.3)])  # lines 26-29
sketch3.addConstraint([
    Sketcher.Constraint("Coincident", 0, 2, 1, 1),
    Sketcher.Constraint("Coincident", 1, 2, 2, 1),
    Sketcher.Constraint("Tangent", 2, 2, 3, 1),
    Sketcher.Constraint("Coincident", 3, 2, 4, 1),
    Sketcher.Constraint("Coincident", 4, 2, 5, 1),
    Sketcher.Constraint("Tangent", 5, 2, 6, 1),
    Sketcher.Constraint("Tangent", 6, 2, 7, 1),
    Sketcher.Constraint("Coincident", 7, 2, 8, 1),
    Sketcher.Constraint("Coincident", 8, 2, 9, 1),
    Sketcher.Constraint("Tangent", 9, 2, 10, 1),
    Sketcher.Constraint("Tangent", 10, 2, 11, 1),
    Sketcher.Constraint("Tangent", 11, 2, 12, 1),
    Sketcher.Constraint("Tangent", 12, 2, 0, 1),
    Sketcher.Constraint("Vertical", 0),
    Sketcher.Constraint("Vertical", 4),
    Sketcher.Constraint("Horizontal", 5),
    Sketcher.Constraint("Vertical", 9),
    Sketcher.Constraint("Horizontal", 11),
    Sketcher.Constraint("Vertical", 14),
    Sketcher.Constraint("Horizontal", 15),
    Sketcher.Constraint("Vertical", 16),
    Sketcher.Constraint("Horizontal", 17),
    Sketcher.Constraint("Horizontal", 18),
    Sketcher.Constraint("Vertical", 19),
    Sketcher.Constraint("Horizontal", 20),
    Sketcher.Constraint("Vertical", 21),
    Sketcher.Constraint("Horizontal", 22),
    Sketcher.Constraint("Vertical", 23),
    Sketcher.Constraint("Horizontal", 24),
    Sketcher.Constraint("Vertical", 25),
    Sketcher.Constraint("Horizontal", 26),
    Sketcher.Constraint("Vertical", 27),
    Sketcher.Constraint("Horizontal", 28),
    Sketcher.Constraint("Vertical", 29),
    Sketcher.Constraint("Equal", 3, 6),
    Sketcher.Constraint("Equal", 1, 8),
    Sketcher.Constraint("Equal", 10, 12),
    Sketcher.Constraint("Horizontal", 3, 3, 6, 3),
    Sketcher.Constraint("Horizontal", 1, 3, 8, 3),
    Sketcher.Constraint("Horizontal", 1, 2, 7, 2),
    Sketcher.Constraint("Horizontal", 0, 2, 8, 2),
    Sketcher.Constraint("Horizontal", 17, 2, 22, 2),
    Sketcher.Constraint("Horizontal", 15, 2, 23, 2),
    Sketcher.Constraint("Horizontal", 21, 2, 26, 2),
    Sketcher.Constraint("Horizontal", 20, 2, 27, 2),
    Sketcher.Constraint("Vertical", 17, 2, 18, 2),
    Sketcher.Constraint("Vertical", 16, 2, 20, 2),
    Sketcher.Constraint("Vertical", 23, 2, 26, 2),
    Sketcher.Constraint("Vertical", 25, 2, 28, 2),
    Sketcher.Constraint("Equal", 20, 22),
    Sketcher.Constraint("Radius", 10, Q("3 in")),
    Sketcher.Constraint("Radius", 3, Q("2.5 in")),
    Sketcher.Constraint("Diameter", 13, Q("0.75 in")),
    Sketcher.Constraint("DistanceX", 11, 2, 11, 1, Q("14 in")),
    Sketcher.Constraint("DistanceY", 0, 2, 0, 1, Q("22 in")),
    Sketcher.Constraint("DistanceY", 19, 1, 19, 2, Q("2 in")),
    Sketcher.Constraint("DistanceX", 15, 1, 15, 2, Q("0.8 in")),
    Sketcher.Constraint("DistanceY", 14, 1, 14, 2, Q("1.5 in")),
    Sketcher.Constraint("DistanceY", 5, 2, 7, 2, Q("12 in")),
    Sketcher.Constraint("DistanceX", 12, 2, 14, 2, Q("1 in")),
    Sketcher.Constraint("DistanceY", 14, 2, 12, 2, Q("10 in")),
    Sketcher.Constraint("DistanceY", 17, 2, 18, 2, Q("4 in")),
    Sketcher.Constraint("DistanceX", 1, 2, 3, 2, Q("4.5 in")),
    Sketcher.Constraint("DistanceX", 22, 2, 8, 2, Q("1.85 in")),
    Sketcher.Constraint("DistanceX", 1, 2, 13, 3, Q("8.375 in")),
    Sketcher.Constraint("Radius", 1, Q("91.695343 mm")),
    Sketcher.Constraint("DistanceX", -1, 1, 10, 3, Q("113.140001 mm")),
    Sketcher.Constraint("DistanceX", 3, 3, 13, 3, Q("86.945698 mm")),
    Sketcher.Constraint("DistanceX", 13, 3, 7, 2, Q("202.8443 mm")),
    Sketcher.Constraint("DistanceY", 6, 2, 8, 2, Q("286.8566 mm")),
    Sketcher.Constraint("Distance", 7, Q("260.762328 mm")),
    Sketcher.Constraint("DistanceY", 13, 3, -1, 1, Q("250.453979 mm")),
    Sketcher.Constraint("DistanceY", 13, 3, 8, 3, Q("371.336281 mm")),
])
sketch3.setExpression("Constraints[66]", "Params.sketch3_radius")
sketch3.setExpression("Constraints[67]", "Params.sketch3_radius2")
sketch3.setExpression("Constraints[68]", "Params.sketch3_diameter")
sketch3.setExpression("Constraints[69]", "Params.sketch3_width")
sketch3.setExpression("Constraints[70]", "Params.sketch3_height")
pad3 = body.newObject("PartDesign::Pad", "Pad002")
pad3.Profile = sketch3
pad3.setExpression("Length", "Params.pad3_length")

doc.recompute()
